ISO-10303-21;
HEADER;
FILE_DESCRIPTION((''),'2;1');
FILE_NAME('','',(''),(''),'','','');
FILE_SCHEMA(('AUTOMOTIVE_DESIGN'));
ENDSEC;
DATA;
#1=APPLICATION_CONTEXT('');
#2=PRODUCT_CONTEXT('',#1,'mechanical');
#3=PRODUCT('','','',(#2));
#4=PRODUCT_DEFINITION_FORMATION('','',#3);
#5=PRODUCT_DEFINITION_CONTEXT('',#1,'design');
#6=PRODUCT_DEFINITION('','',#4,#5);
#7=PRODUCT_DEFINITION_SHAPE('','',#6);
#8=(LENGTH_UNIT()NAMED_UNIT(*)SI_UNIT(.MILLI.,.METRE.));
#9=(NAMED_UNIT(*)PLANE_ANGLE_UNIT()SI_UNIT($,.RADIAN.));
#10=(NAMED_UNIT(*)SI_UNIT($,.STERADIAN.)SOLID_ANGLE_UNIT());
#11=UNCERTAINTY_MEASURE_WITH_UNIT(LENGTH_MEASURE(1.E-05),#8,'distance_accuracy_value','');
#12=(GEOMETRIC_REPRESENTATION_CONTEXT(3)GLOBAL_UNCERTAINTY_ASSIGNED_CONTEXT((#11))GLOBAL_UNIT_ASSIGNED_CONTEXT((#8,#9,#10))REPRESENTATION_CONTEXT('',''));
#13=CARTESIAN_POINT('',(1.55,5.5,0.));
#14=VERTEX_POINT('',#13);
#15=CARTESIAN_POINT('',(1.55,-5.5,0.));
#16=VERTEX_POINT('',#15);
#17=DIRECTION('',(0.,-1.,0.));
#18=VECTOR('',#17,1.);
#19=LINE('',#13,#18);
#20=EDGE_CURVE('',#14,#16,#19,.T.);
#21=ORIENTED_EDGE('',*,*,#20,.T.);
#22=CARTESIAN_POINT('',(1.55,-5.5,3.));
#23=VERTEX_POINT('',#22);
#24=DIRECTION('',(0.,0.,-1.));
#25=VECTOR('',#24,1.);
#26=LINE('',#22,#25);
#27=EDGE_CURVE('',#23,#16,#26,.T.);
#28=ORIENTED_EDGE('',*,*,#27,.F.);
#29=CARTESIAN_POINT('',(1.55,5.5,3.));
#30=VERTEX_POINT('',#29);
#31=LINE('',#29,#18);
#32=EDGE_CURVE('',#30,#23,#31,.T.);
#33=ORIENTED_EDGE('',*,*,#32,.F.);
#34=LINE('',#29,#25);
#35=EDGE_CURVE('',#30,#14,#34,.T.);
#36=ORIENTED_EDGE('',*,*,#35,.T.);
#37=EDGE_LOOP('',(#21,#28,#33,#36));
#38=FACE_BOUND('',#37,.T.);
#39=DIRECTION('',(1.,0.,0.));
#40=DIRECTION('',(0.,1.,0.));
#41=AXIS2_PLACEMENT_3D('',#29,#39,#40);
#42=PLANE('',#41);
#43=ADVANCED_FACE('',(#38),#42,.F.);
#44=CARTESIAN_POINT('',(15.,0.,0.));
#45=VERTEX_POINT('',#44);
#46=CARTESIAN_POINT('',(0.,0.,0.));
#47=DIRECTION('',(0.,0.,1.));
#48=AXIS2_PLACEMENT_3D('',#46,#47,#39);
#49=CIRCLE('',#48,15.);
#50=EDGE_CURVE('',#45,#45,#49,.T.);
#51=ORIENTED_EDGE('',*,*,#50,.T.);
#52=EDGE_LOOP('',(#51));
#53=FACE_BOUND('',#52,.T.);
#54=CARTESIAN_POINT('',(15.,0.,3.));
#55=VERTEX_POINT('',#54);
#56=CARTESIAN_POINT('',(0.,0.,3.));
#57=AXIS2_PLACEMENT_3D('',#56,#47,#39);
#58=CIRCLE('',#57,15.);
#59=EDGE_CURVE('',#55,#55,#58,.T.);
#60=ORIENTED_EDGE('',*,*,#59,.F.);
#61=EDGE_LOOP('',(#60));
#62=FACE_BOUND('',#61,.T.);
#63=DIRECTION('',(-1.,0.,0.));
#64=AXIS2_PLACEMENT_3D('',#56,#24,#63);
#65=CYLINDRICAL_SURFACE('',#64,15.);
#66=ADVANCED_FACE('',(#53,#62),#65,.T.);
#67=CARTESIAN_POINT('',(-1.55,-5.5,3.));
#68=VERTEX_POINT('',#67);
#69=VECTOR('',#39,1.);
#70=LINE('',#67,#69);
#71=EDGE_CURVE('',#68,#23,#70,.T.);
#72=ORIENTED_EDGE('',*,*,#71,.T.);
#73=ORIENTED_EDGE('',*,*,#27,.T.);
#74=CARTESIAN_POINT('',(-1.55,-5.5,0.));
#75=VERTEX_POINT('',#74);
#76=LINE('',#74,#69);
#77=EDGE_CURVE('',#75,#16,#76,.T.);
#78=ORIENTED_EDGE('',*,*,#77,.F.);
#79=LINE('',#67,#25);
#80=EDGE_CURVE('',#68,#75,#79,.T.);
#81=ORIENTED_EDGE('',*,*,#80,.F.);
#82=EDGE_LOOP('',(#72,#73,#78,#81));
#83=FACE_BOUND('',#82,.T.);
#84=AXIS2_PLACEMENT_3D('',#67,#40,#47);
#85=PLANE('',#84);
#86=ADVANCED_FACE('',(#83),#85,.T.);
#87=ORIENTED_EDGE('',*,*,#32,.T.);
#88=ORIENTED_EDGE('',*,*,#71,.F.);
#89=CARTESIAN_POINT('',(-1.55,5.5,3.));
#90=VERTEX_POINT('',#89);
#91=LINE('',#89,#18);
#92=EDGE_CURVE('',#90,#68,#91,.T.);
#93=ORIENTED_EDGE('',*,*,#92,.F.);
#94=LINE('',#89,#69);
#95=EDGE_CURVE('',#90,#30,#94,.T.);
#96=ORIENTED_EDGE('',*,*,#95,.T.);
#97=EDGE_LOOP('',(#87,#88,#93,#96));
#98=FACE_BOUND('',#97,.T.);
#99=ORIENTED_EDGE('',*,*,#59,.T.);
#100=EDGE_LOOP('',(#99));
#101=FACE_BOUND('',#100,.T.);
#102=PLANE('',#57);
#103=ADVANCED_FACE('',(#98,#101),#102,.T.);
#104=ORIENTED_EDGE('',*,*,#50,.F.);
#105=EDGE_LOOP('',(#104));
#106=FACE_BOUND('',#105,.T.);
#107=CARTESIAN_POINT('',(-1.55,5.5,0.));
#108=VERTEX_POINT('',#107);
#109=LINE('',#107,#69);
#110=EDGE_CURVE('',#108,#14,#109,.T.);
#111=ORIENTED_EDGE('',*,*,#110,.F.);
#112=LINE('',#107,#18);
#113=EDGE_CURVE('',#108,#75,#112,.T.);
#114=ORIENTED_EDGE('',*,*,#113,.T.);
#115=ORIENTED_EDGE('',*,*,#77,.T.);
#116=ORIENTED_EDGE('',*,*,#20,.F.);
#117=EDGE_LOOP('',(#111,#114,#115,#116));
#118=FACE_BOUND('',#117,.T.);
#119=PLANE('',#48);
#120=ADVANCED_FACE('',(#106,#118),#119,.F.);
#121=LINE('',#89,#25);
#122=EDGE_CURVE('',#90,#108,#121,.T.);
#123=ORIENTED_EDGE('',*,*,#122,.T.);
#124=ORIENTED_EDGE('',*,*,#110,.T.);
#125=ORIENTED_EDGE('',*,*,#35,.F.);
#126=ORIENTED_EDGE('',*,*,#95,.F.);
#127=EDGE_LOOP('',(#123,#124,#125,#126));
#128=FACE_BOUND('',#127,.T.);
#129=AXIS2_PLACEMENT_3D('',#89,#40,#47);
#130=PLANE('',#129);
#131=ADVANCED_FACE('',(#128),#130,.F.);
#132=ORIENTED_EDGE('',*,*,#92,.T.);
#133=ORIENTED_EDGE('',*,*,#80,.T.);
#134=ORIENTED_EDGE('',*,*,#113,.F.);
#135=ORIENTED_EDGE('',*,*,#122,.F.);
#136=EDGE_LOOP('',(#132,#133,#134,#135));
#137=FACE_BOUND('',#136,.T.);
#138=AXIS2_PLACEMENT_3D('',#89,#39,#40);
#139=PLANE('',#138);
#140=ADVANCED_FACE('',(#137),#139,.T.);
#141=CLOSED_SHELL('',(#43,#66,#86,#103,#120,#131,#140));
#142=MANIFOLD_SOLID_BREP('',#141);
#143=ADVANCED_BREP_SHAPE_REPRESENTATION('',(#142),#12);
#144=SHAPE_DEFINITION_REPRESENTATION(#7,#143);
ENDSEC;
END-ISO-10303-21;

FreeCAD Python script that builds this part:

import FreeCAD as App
import Part
import Sketcher

V = App.Vector

doc = App.newDocument("Part")
body = doc.addObject("PartDesign::Body", "Body")

# Sketch on XY plane
sketch1 = body.newObject("Sketcher::SketchObject", "Sketch")
sketch1.AttachmentSupport = (doc.getObject("XY_Plane"), [""])
sketch1.MapMode = "FlatFace"
sketch1.addGeometry(Part.Circle(V(0, 0, 0), V(0, 0, 1), 15), False)
sketch1.addConstraint(Sketcher.Constraint("Coincident", 0, 3, -1, 1))
sketch1.addConstraint(Sketcher.Constraint("Diameter", 0, 30.0))
pad1 = body.newObject("PartDesign::Pad", "Pad")
pad1.Profile = sketch1
pad1.Length = 3

# Sketch on XY plane
sketch2 = body.newObject("Sketcher::SketchObject", "Sketch001")
sketch2.AttachmentSupport = (doc.getObject("XY_Plane"), [""])
sketch2.MapMode = "FlatFace"
sketch2.addGeometry(Part.LineSegment(V(-1.6, 5.5, 0), V(-1.6, -5.5, 0)), False)
sketch2.addGeometry(Part.LineSegment(V(-1.6, -5.5, 0), V(1.6, -5.5, 0)), False)
sketch2.addGeometry(Part.LineSegment(V(1.6, -5.5, 0), V(1.6, 5.5, 0)), False)
sketch2.addGeometry(Part.LineSegment(V(1.6, 5.5, 0), V(-1.6, 5.5, 0)), False)
sketch2.addConstraint(Sketcher.Constraint("Coincident", 0, 2, 1, 1))
sketch2.addConstraint(Sketcher.Constraint("Coincident", 1, 2, 2, 1))
sketch2.addConstraint(Sketcher.Constraint("Coincident", 2, 2, 3, 1))
sketch2.addConstraint(Sketcher.Constraint("Coincident", 3, 2, 0, 1))
sketch2.addConstraint(Sketcher.Constraint("Vertical", 0))
sketch2.addConstraint(Sketcher.Constraint("Horizontal", 1))
sketch2.addConstraint(Sketcher.Constraint("Vertical", 2))
sketch2.addConstraint(Sketcher.Constraint("Horizontal", 3))
sketch2.addConstraint(Sketcher.Constraint("Symmetric", 0, 2, 2, 2, -1, 1))
sketch2.addConstraint(Sketcher.Constraint("DistanceY", 0, 2, 0, 1, 11.0))
sketch2.addConstraint(Sketcher.Constraint("DistanceX", 1, 1, 1, 2, 3.1))
pocket1 = body.newObject("PartDesign::Pocket", "Pocket")
pocket1.Profile = sketch2
pocket1.Length = 3
pocket1.Reversed = True

doc.recompute()
